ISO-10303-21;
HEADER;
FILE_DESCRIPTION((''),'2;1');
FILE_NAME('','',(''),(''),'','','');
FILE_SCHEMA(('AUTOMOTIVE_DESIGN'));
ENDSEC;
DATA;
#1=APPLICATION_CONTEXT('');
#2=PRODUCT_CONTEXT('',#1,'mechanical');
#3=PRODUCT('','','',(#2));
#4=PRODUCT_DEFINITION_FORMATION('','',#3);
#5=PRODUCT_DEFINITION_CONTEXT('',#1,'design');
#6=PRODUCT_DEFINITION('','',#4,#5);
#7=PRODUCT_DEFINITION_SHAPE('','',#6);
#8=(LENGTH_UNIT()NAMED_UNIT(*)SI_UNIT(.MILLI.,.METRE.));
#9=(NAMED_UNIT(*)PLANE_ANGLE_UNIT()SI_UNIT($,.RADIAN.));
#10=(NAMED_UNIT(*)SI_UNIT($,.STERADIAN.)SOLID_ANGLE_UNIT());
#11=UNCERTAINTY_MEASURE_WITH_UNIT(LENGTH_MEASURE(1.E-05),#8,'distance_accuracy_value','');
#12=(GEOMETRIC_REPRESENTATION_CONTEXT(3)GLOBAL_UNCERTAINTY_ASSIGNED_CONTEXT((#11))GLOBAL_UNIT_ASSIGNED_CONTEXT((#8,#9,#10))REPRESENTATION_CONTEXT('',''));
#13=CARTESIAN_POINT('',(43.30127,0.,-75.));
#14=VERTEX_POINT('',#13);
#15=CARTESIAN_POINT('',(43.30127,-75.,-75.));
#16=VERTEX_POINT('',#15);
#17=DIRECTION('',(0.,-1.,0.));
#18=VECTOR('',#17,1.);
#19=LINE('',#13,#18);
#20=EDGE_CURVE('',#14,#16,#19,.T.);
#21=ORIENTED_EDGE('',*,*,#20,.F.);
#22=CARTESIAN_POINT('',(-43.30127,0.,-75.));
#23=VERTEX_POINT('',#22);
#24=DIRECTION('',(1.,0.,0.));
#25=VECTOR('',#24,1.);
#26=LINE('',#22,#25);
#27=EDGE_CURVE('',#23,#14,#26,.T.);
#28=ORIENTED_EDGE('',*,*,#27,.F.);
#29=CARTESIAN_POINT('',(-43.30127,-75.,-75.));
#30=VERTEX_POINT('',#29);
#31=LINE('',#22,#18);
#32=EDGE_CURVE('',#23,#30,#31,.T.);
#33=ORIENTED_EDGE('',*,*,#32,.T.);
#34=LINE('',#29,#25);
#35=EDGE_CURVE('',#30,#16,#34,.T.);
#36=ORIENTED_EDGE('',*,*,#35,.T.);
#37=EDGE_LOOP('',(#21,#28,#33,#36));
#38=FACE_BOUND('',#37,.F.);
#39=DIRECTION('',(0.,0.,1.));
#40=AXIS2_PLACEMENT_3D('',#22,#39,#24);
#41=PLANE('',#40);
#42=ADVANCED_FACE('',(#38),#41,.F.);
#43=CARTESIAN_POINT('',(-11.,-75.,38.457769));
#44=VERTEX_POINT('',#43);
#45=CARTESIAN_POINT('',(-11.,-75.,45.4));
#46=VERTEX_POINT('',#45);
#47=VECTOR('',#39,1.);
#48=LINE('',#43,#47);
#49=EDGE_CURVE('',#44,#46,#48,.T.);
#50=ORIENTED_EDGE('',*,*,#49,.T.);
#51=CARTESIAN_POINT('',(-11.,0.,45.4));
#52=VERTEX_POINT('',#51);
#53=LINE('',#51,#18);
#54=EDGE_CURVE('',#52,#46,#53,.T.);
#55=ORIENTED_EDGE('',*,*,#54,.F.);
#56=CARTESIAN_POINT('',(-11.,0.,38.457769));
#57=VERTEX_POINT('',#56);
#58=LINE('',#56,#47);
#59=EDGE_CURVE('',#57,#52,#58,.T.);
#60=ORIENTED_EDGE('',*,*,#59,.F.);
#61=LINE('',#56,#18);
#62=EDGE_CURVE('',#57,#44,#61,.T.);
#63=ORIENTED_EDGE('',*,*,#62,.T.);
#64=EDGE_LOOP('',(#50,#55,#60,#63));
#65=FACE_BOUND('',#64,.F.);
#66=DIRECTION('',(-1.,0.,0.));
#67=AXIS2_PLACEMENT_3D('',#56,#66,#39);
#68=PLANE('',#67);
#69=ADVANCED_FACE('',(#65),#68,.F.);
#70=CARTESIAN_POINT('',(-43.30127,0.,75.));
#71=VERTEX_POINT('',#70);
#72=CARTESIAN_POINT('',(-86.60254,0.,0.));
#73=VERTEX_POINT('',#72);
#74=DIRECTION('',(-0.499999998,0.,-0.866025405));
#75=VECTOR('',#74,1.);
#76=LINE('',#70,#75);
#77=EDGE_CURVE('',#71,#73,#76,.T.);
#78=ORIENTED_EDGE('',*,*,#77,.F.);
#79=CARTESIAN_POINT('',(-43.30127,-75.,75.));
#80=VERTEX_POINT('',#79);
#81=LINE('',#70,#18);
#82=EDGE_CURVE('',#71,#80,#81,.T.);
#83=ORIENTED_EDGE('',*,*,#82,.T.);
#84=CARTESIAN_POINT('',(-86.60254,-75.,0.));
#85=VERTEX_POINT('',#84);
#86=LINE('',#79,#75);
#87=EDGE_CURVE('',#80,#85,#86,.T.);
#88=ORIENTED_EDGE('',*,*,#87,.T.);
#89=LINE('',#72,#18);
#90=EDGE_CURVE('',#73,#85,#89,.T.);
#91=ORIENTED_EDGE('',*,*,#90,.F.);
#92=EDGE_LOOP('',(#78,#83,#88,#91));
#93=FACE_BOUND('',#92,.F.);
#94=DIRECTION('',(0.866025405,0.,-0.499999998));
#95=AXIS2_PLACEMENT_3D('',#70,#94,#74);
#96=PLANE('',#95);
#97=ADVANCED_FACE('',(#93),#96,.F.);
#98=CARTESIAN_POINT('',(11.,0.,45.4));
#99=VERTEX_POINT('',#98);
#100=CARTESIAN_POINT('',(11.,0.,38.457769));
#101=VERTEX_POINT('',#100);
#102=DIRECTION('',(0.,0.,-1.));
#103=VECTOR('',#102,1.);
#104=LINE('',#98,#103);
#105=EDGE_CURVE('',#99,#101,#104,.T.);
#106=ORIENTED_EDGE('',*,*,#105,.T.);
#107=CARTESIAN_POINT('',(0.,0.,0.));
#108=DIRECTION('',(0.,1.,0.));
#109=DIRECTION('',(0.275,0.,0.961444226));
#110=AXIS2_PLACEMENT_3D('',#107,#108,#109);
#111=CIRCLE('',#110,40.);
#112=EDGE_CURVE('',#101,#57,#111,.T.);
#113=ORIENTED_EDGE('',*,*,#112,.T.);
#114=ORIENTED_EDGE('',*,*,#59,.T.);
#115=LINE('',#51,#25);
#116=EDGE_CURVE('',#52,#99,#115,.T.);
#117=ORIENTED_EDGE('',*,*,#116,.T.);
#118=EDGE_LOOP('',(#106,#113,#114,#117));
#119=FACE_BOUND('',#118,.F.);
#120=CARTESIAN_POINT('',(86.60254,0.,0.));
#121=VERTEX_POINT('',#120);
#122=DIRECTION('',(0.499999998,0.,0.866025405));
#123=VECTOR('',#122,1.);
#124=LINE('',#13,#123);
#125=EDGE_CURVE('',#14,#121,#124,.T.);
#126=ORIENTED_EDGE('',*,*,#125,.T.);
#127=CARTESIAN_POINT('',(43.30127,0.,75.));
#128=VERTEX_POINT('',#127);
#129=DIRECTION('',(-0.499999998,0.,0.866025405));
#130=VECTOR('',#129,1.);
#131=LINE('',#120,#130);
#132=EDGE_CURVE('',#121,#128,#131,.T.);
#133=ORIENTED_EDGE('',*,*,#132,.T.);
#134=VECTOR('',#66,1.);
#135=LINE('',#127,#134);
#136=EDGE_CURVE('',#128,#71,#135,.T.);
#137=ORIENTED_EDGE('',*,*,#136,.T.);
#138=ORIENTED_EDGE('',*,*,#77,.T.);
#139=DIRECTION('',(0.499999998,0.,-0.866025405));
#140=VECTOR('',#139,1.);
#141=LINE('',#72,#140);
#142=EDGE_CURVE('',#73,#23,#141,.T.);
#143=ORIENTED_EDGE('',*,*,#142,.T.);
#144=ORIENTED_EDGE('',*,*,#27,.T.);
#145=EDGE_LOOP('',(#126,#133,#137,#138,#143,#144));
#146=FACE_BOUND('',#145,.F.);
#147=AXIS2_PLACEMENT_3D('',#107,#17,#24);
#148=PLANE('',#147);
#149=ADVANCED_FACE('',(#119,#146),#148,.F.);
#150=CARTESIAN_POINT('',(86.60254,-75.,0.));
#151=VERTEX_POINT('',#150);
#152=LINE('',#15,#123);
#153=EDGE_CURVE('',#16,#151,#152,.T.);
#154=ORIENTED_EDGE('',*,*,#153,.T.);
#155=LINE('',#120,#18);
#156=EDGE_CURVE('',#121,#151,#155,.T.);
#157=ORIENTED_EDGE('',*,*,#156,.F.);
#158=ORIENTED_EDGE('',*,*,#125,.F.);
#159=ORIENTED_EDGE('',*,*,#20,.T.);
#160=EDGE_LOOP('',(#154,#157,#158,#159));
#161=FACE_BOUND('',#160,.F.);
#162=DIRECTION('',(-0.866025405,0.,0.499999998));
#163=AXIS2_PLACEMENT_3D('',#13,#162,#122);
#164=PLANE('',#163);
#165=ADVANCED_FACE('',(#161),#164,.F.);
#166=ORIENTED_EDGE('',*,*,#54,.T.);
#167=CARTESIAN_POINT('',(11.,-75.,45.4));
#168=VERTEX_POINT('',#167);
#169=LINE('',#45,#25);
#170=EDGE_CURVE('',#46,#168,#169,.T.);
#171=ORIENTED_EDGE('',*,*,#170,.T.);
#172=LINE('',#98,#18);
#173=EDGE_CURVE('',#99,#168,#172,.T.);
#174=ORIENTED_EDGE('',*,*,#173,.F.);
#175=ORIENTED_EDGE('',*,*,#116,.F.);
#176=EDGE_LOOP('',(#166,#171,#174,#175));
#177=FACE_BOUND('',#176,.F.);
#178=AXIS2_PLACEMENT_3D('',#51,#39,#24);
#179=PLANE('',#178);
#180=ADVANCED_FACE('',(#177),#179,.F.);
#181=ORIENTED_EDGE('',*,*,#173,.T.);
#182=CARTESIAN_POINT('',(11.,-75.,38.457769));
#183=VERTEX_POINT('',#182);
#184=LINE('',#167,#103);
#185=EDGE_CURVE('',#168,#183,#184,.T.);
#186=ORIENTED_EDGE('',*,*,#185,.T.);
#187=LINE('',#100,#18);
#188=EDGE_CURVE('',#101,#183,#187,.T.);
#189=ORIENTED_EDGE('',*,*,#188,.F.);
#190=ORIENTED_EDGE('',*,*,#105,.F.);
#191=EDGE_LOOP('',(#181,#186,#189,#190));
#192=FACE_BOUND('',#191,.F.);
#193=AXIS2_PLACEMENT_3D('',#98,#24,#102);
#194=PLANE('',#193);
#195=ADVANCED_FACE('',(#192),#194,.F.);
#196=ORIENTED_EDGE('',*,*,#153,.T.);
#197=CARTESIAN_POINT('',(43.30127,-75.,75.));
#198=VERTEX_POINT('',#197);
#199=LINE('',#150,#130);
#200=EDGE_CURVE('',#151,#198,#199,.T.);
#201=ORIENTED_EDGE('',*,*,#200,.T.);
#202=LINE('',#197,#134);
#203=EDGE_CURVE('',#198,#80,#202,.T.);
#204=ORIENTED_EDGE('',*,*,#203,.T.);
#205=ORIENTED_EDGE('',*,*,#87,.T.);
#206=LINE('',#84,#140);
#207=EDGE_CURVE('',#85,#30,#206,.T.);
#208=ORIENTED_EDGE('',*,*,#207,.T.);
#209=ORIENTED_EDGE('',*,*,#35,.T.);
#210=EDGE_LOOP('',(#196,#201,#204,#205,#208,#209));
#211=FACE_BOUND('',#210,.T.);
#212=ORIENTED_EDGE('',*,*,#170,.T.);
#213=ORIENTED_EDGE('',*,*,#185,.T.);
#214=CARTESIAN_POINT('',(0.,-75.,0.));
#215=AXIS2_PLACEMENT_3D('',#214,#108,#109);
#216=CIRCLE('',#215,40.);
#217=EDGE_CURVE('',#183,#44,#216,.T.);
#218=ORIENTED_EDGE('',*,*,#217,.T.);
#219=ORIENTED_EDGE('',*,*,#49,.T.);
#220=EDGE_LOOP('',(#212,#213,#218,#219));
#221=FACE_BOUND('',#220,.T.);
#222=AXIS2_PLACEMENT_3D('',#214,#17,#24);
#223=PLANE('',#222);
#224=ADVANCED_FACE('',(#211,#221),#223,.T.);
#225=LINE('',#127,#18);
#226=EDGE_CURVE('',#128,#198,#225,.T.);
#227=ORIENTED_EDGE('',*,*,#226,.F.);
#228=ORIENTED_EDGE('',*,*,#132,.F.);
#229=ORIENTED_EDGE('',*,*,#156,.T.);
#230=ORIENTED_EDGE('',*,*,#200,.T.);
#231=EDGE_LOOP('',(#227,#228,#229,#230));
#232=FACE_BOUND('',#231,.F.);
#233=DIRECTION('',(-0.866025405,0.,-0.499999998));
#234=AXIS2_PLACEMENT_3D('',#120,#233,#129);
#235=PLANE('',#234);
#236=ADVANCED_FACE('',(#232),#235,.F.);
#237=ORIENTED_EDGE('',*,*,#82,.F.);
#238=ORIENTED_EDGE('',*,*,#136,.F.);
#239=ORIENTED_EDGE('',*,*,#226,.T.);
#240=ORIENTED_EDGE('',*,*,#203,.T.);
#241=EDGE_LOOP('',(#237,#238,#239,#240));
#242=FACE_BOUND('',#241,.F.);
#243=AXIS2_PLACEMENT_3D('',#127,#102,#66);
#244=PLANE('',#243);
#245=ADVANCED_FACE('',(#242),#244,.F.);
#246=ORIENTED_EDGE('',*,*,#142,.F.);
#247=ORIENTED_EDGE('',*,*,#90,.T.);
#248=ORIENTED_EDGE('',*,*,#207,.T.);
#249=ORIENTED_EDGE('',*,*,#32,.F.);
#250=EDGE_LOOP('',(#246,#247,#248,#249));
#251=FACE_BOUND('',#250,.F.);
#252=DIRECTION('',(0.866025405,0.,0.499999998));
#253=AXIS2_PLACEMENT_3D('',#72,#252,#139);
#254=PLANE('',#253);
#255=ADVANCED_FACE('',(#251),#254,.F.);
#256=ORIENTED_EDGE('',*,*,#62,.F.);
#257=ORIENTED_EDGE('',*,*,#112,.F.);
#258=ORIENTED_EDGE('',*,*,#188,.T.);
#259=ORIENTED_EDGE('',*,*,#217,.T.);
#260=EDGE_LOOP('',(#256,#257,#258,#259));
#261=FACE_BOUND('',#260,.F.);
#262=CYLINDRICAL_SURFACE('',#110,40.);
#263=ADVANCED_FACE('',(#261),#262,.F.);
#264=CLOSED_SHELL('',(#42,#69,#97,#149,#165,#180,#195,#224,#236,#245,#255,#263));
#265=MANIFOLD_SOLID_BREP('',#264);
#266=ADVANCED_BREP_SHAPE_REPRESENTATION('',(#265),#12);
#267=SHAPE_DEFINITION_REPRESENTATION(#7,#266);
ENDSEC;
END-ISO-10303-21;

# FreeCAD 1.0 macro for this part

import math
import FreeCAD as App
import Part
import Sketcher
from FreeCAD import Vector
Q = App.Units.Quantity


def add_polygon(sketch, points):
    """Adds a closed chain of lines whose ends are joined by coincident constraints."""
    first, n = sketch.GeometryCount, len(points)
    for a, b in zip(points, points[1:] + points[:1]):
        sketch.addGeometry(Part.LineSegment(App.Vector(*a, 0), App.Vector(*b, 0)), False)
    for i in range(n):
        sketch.addConstraint(Sketcher.Constraint("Coincident", first + i, 2, first + (i + 1) % n, 1))

doc = App.newDocument("Part")
body = doc.addObject("PartDesign::Body", "Body")

# Sketch on XZ plane
sketch1 = doc.addObject("Sketcher::SketchObject", "Sketch")
body.addObject(sketch1)
sketch1.AttachmentSupport = (doc.XZ_Plane, [""])
sketch1.MapMode = "FlatFace"
add_polygon(sketch1, [(43.30127, -75), (86.60254, 0), (43.30127, 75), (-43.30127, 75), (-86.60254, 0), (-43.30127, -75)])  # lines 0-5
sketch1.addGeometry(Part.LineSegment(Vector(11, 45.4, 0), Vector(11, 38.457769, 0)), False)  # 6
sketch1.addGeometry(Part.ArcOfCircle(Part.Circle(Vector(0, 0, 0), Vector(0, 0, 1), 40), math.radians(105.962014), math.radians(434.037986)), False)  # 7
sketch1.addGeometry(Part.LineSegment(Vector(-11, 38.457769, 0), Vector(-11, 45.4, 0)), False)  # 8
sketch1.addGeometry(Part.LineSegment(Vector(-11, 45.4, 0), Vector(11, 45.4, 0)), False)  # 9
sketch1.addConstraint(Sketcher.Constraint("Coincident", 6, 2, 7, 2))
sketch1.addConstraint(Sketcher.Constraint("Coincident", 7, 1, 8, 1))
sketch1.addConstraint(Sketcher.Constraint("Coincident", 8, 2, 9, 1))
sketch1.addConstraint(Sketcher.Constraint("Coincident", 9, 2, 6, 1))
sketch1.addConstraint(Sketcher.Constraint("Horizontal", 2))
sketch1.addConstraint(Sketcher.Constraint("Horizontal", 5))
sketch1.addConstraint(Sketcher.Constraint("Vertical", 6))
sketch1.addConstraint(Sketcher.Constraint("Vertical", 8))
sketch1.addConstraint(Sketcher.Constraint("Horizontal", 9))
sketch1.addConstraint(Sketcher.Constraint("Coincident", 7, 3, -1, 1))
sketch1.addConstraint(Sketcher.Constraint("Symmetric", 0, 2, 3, 2, -1, 1))
sketch1.addConstraint(Sketcher.Constraint("Symmetric", 1, 2, 4, 2, -1, 1))
sketch1.addConstraint(Sketcher.Constraint("PointOnObject", 0, 2, -1))
sketch1.addConstraint(Sketcher.Constraint("Parallel", 0, 3))
sketch1.addConstraint(Sketcher.Constraint("Horizontal", 6, 2, 7, 1))
sketch1.addConstraint(Sketcher.Constraint("Vertical", 2, 2, 4, 2))
sketch1.addConstraint(Sketcher.Constraint("Radius", 7, 40.0))
sketch1.addConstraint(Sketcher.Constraint("DistanceX", 9, 1, 9, 2, 22.0))
sketch1.addConstraint(Sketcher.Constraint("Angle", 0, Q("60 deg")))
sketch1.addConstraint(Sketcher.Constraint("DistanceY", -1, 1, 1, 2, 75.0))
sketch1.addConstraint(Sketcher.Constraint("DistanceY", -1, 1, 8, 2, 45.4))
sketch1.addConstraint(Sketcher.Constraint("DistanceX", 2, 2, 2, 1, 86.60254))
pad1 = doc.addObject("PartDesign::Pad", "Pad")
body.addObject(pad1)
pad1.Profile = sketch1
pad1.Length = 75

doc.recompute()
